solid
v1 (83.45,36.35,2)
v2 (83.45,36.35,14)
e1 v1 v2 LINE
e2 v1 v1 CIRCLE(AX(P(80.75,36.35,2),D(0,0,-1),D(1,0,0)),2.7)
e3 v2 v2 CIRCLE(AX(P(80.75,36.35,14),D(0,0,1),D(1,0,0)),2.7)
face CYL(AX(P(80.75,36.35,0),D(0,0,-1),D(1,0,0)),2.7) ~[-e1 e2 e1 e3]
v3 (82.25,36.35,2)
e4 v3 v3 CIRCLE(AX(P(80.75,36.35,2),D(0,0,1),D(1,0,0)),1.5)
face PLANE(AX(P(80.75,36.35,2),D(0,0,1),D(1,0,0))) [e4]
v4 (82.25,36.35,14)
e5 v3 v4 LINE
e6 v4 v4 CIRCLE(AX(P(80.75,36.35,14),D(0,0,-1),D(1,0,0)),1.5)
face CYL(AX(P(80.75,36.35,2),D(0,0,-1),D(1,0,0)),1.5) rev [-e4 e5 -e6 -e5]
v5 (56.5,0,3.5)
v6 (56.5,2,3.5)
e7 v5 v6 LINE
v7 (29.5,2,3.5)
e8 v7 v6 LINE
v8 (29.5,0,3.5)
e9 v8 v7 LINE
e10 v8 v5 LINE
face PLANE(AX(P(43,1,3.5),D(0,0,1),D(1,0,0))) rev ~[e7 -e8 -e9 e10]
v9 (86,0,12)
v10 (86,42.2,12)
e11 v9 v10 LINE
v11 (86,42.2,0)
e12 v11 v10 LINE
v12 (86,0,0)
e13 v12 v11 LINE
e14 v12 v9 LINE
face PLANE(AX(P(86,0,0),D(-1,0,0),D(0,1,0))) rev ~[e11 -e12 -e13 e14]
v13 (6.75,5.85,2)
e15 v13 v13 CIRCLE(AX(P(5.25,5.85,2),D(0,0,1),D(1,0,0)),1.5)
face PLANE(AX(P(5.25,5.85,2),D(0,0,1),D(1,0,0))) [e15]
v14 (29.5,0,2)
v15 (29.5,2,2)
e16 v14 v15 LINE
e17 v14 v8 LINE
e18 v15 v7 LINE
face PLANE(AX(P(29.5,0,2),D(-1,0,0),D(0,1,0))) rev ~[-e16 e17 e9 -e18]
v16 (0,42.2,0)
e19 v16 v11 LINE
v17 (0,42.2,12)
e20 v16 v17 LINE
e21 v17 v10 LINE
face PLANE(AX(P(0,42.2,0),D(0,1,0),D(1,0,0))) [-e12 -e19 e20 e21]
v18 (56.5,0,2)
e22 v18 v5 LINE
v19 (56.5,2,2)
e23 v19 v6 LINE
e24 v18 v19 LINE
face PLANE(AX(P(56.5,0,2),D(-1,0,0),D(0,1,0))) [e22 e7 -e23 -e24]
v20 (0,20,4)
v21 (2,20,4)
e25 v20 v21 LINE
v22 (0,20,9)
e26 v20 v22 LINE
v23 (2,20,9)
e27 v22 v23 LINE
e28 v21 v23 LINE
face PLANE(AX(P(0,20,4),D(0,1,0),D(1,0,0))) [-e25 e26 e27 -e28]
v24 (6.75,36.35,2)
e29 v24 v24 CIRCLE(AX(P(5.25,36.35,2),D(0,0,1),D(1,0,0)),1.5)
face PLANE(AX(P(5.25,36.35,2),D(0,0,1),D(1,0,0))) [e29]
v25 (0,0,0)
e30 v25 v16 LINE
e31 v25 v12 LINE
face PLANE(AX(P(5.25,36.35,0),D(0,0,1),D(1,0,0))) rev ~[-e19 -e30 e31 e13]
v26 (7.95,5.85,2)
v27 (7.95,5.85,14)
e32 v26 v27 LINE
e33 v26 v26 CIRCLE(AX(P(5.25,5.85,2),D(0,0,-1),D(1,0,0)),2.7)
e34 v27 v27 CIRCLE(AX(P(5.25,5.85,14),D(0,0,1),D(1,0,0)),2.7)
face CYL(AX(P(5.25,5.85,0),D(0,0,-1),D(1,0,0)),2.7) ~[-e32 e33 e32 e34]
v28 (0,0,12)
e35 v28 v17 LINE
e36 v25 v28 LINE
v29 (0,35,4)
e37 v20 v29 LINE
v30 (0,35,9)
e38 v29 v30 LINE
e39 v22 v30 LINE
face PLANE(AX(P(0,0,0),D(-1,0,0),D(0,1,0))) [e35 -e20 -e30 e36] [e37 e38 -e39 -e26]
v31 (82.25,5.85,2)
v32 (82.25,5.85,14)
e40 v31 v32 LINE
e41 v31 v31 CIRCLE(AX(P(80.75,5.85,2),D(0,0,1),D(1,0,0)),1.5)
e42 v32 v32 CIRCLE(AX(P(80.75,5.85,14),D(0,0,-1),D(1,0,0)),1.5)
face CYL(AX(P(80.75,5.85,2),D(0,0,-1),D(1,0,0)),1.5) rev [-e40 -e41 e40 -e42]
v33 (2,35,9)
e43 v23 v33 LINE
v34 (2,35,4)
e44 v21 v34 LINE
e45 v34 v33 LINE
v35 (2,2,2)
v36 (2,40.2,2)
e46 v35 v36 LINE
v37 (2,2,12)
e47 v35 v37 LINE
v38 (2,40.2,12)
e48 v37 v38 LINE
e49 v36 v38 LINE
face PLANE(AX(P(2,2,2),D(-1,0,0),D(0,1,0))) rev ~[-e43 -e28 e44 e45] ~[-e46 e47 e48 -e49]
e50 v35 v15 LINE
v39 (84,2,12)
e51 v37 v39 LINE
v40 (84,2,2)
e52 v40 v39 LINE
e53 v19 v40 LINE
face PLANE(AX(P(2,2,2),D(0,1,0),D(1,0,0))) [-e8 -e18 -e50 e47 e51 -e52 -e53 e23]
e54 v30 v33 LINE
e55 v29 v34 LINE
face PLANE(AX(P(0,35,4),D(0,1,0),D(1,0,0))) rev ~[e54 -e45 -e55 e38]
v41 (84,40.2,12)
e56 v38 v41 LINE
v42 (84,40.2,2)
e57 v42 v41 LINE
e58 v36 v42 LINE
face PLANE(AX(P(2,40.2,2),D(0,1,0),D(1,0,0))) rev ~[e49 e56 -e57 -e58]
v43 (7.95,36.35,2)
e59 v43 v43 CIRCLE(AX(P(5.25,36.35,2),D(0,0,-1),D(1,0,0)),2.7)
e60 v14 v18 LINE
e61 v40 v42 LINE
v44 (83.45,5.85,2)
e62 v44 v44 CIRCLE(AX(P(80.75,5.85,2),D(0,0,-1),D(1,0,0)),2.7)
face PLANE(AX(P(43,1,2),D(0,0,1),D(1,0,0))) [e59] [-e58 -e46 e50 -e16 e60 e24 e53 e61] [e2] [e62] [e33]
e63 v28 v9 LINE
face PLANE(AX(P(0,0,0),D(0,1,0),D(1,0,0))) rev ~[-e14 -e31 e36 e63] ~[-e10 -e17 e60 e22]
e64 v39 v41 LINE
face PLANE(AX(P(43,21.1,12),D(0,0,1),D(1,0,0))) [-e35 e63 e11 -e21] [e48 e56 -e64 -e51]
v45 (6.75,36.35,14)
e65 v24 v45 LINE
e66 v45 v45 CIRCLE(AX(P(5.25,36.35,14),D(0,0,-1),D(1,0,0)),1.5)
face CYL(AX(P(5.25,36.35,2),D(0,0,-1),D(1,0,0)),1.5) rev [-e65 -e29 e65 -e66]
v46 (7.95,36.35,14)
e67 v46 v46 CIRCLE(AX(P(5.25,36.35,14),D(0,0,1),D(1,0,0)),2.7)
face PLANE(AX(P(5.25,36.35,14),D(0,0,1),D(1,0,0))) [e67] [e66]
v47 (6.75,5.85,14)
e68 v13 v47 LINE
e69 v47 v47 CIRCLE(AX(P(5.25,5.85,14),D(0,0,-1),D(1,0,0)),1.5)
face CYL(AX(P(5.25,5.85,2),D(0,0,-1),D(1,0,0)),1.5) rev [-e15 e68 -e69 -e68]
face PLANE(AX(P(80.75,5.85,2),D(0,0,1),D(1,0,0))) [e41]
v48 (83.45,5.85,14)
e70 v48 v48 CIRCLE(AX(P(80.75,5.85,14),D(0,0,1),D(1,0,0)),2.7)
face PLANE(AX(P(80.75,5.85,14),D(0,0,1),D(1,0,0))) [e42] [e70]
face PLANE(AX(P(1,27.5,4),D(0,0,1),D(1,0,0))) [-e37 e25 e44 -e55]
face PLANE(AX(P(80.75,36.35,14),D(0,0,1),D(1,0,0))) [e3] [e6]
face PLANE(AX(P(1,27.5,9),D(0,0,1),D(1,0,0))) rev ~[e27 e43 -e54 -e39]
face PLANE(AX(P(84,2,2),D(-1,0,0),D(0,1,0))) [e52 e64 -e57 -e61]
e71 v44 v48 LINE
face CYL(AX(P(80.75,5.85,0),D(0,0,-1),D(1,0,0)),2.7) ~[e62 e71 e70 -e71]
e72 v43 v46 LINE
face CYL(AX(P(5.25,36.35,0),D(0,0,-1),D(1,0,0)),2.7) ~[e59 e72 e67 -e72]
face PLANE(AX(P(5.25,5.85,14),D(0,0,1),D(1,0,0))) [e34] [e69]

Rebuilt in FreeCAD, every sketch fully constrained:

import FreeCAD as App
import Part
import Sketcher
from FreeCAD import Vector


def add_polygon(sketch, points):
    """Adds a closed chain of lines whose ends are joined by coincident constraints."""
    first, n = sketch.GeometryCount, len(points)
    for a, b in zip(points, points[1:] + points[:1]):
        sketch.addGeometry(Part.LineSegment(App.Vector(*a, 0), App.Vector(*b, 0)), False)
    for i in range(n):
        sketch.addConstraint(Sketcher.Constraint("Coincident", first + i, 2, first + (i + 1) % n, 1))

doc = App.newDocument("Part")
body = doc.addObject("PartDesign::Body", "Body")

# Sketch on XY plane
sketch1 = doc.addObject("Sketcher::SketchObject", "Sketch")
body.addObject(sketch1)
sketch1.AttachmentSupport = (doc.XY_Plane, [""])
sketch1.MapMode = "FlatFace"
add_polygon(sketch1, [(0, 42.2), (0, 0), (86, 0), (86, 42.2)])  # lines 0-3
sketch1.addConstraint([
    Sketcher.Constraint("Vertical", 0),
    Sketcher.Constraint("Horizontal", 1),
    Sketcher.Constraint("Vertical", 2),
    Sketcher.Constraint("Horizontal", 3),
    Sketcher.Constraint("Coincident", 0, 2, -1, 1),
    Sketcher.Constraint("DistanceX", 1, 1, 1, 2, 86.0),
    Sketcher.Constraint("DistanceY", 0, 2, 0, 1, 42.2),
])
pad1 = doc.addObject("PartDesign::Pad", "Pad")
body.addObject(pad1)
pad1.Profile = sketch1
pad1.Length = 12

# Sketch on XY plane
sketch2 = doc.addObject("Sketcher::SketchObject", "Sketch001")
body.addObject(sketch2)
sketch2.AttachmentSupport = (doc.XY_Plane, [""])
sketch2.MapMode = "FlatFace"
sketch2.AttachmentOffset = App.Placement(Vector(0, 0, 2), App.Rotation())
add_polygon(sketch2, [(2, 40.2), (2, 2), (84, 2), (84, 40.2)])  # lines 0-3
sketch2.addConstraint([
    Sketcher.Constraint("Vertical", 0),
    Sketcher.Constraint("Horizontal", 1),
    Sketcher.Constraint("Vertical", 2),
    Sketcher.Constraint("Horizontal", 3),
    Sketcher.Constraint("DistanceX", 1, 1, 1, 2, 82.0),
    Sketcher.Constraint("DistanceY", 0, 2, 0, 1, 38.2),
    Sketcher.Constraint("DistanceX", -1, 1, 0, 2, 2.0),
    Sketcher.Constraint("DistanceY", -1, 1, 0, 2, 2.0),
])
pocket1 = doc.addObject("PartDesign::Pocket", "Pocket")
body.addObject(pocket1)
pocket1.Profile = sketch2
pocket1.Length = 10
pocket1.Reversed = True

# Sketch on XY plane
sketch3 = doc.addObject("Sketcher::SketchObject", "Sketch002")
body.addObject(sketch3)
sketch3.AttachmentSupport = (doc.XY_Plane, [""])
sketch3.MapMode = "FlatFace"
sketch3.addGeometry([
    Part.Circle(Vector(5.25, 36.35, 0), Vector(0, 0, 1), 2.7),
    Part.Circle(Vector(80.75, 36.35, 0), Vector(0, 0, 1), 2.7),
    Part.Circle(Vector(80.75, 5.85, 0), Vector(0, 0, 1), 2.7),
    Part.Circle(Vector(5.25, 5.85, 0), Vector(0, 0, 1), 2.7),
], False)
sketch3.addConstraint([
    Sketcher.Constraint("Equal", 0, 1),
    Sketcher.Constraint("Equal", 1, 2),
    Sketcher.Constraint("Equal", 2, 3),
    Sketcher.Constraint("Horizontal", 0, 3, 1, 3),
    Sketcher.Constraint("Horizontal", 2, 3, 3, 3),
    Sketcher.Constraint("Vertical", 1, 3, 2, 3),
    Sketcher.Constraint("Vertical", 0, 3, 3, 3),
    Sketcher.Constraint("Diameter", 0, 5.4),
    Sketcher.Constraint("DistanceX", 0, 3, 1, 3, 75.5),
    Sketcher.Constraint("DistanceY", 2, 3, 1, 3, 30.5),
    Sketcher.Constraint("DistanceX", -1, 1, 0, 3, 5.25),
    Sketcher.Constraint("DistanceY", -1, 1, 0, 3, 36.35),
])
pad2 = doc.addObject("PartDesign::Pad", "Pad001")
body.addObject(pad2)
pad2.Profile = sketch3
pad2.Length = 14

# Sketch on XY plane
sketch4 = doc.addObject("Sketcher::SketchObject", "Sketch003")
body.addObject(sketch4)
sketch4.AttachmentSupport = (doc.XY_Plane, [""])
sketch4.MapMode = "FlatFace"
sketch4.AttachmentOffset = App.Placement(Vector(0, 0, 2), App.Rotation())
sketch4.addGeometry([
    Part.Circle(Vector(5.25, 36.35, 0), Vector(0, 0, 1), 1.5),
    Part.Circle(Vector(80.75, 36.35, 0), Vector(0, 0, 1), 1.5),
    Part.Circle(Vector(80.75, 5.85, 0), Vector(0, 0, 1), 1.5),
    Part.Circle(Vector(5.25, 5.85, 0), Vector(0, 0, 1), 1.5),
], False)
sketch4.addConstraint([
    Sketcher.Constraint("Equal", 0, 1),
    Sketcher.Constraint("Equal", 1, 2),
    Sketcher.Constraint("Equal", 2, 3),
    Sketcher.Constraint("Horizontal", 0, 3, 1, 3),
    Sketcher.Constraint("Horizontal", 2, 3, 3, 3),
    Sketcher.Constraint("Vertical", 1, 3, 2, 3),
    Sketcher.Constraint("Vertical", 0, 3, 3, 3),
    Sketcher.Constraint("Diameter", 0, 3.0),
    Sketcher.Constraint("DistanceX", 0, 3, 1, 3, 75.5),
    Sketcher.Constraint("DistanceY", 2, 3, 1, 3, 30.5),
    Sketcher.Constraint("DistanceX", -1, 1, 0, 3, 5.25),
    Sketcher.Constraint("DistanceY", -1, 1, 0, 3, 36.35),
])
pocket2 = doc.addObject("PartDesign::Pocket", "Pocket001")
body.addObject(pocket2)
pocket2.Profile = sketch4
pocket2.Length = 14
pocket2.Reversed = True

# Sketch on XY plane
sketch5 = doc.addObject("Sketcher::SketchObject", "Sketch004")
body.addObject(sketch5)
sketch5.AttachmentSupport = (doc.XY_Plane, [""])
sketch5.MapMode = "FlatFace"
sketch5.AttachmentOffset = App.Placement(Vector(0, 0, 4), App.Rotation())
add_polygon(sketch5, [(0, 35), (0, 20), (2, 20), (2, 35)])  # lines 0-3
sketch5.addConstraint([
    Sketcher.Constraint("Vertical", 0),
    Sketcher.Constraint("Horizontal", 1),
    Sketcher.Constraint("Vertical", 2),
    Sketcher.Constraint("Horizontal", 3),
    Sketcher.Constraint("PointOnObject", 0, 2, -2),
    Sketcher.Constraint("DistanceX", 1, 1, 1, 2, 2.0),
    Sketcher.Constraint("DistanceY", 0, 2, 0, 1, 15.0),
    Sketcher.Constraint("DistanceY", -1, 1, 0, 2, 20.0),
])
pocket3 = doc.addObject("PartDesign::Pocket", "Pocket002")
body.addObject(pocket3)
pocket3.Profile = sketch5
pocket3.Length = 5
pocket3.Reversed = True

# Sketch on XY plane
sketch6 = doc.addObject("Sketcher::SketchObject", "Sketch005")
body.addObject(sketch6)
sketch6.AttachmentSupport = (doc.XY_Plane, [""])
sketch6.MapMode = "FlatFace"
sketch6.AttachmentOffset = App.Placement(Vector(0, 0, 2), App.Rotation())
add_polygon(sketch6, [(29.5, 2), (29.5, 0), (56.5, 0), (56.5, 2)])  # lines 0-3
sketch6.addConstraint([
    Sketcher.Constraint("Vertical", 0),
    Sketcher.Constraint("Horizontal", 1),
    Sketcher.Constraint("Vertical", 2),
    Sketcher.Constraint("Horizontal", 3),
    Sketcher.Constraint("PointOnObject", 0, 2, -1),
    Sketcher.Constraint("DistanceX", 1, 1, 1, 2, 27.0),
    Sketcher.Constraint("DistanceY", 0, 2, 0, 1, 2.0),
    Sketcher.Constraint("DistanceX", -1, 1, 0, 2, 29.5),
])
pocket4 = doc.addObject("PartDesign::Pocket", "Pocket003")
body.addObject(pocket4)
pocket4.Profile = sketch6
pocket4.Length = 1.5
pocket4.Reversed = True

doc.recompute()
